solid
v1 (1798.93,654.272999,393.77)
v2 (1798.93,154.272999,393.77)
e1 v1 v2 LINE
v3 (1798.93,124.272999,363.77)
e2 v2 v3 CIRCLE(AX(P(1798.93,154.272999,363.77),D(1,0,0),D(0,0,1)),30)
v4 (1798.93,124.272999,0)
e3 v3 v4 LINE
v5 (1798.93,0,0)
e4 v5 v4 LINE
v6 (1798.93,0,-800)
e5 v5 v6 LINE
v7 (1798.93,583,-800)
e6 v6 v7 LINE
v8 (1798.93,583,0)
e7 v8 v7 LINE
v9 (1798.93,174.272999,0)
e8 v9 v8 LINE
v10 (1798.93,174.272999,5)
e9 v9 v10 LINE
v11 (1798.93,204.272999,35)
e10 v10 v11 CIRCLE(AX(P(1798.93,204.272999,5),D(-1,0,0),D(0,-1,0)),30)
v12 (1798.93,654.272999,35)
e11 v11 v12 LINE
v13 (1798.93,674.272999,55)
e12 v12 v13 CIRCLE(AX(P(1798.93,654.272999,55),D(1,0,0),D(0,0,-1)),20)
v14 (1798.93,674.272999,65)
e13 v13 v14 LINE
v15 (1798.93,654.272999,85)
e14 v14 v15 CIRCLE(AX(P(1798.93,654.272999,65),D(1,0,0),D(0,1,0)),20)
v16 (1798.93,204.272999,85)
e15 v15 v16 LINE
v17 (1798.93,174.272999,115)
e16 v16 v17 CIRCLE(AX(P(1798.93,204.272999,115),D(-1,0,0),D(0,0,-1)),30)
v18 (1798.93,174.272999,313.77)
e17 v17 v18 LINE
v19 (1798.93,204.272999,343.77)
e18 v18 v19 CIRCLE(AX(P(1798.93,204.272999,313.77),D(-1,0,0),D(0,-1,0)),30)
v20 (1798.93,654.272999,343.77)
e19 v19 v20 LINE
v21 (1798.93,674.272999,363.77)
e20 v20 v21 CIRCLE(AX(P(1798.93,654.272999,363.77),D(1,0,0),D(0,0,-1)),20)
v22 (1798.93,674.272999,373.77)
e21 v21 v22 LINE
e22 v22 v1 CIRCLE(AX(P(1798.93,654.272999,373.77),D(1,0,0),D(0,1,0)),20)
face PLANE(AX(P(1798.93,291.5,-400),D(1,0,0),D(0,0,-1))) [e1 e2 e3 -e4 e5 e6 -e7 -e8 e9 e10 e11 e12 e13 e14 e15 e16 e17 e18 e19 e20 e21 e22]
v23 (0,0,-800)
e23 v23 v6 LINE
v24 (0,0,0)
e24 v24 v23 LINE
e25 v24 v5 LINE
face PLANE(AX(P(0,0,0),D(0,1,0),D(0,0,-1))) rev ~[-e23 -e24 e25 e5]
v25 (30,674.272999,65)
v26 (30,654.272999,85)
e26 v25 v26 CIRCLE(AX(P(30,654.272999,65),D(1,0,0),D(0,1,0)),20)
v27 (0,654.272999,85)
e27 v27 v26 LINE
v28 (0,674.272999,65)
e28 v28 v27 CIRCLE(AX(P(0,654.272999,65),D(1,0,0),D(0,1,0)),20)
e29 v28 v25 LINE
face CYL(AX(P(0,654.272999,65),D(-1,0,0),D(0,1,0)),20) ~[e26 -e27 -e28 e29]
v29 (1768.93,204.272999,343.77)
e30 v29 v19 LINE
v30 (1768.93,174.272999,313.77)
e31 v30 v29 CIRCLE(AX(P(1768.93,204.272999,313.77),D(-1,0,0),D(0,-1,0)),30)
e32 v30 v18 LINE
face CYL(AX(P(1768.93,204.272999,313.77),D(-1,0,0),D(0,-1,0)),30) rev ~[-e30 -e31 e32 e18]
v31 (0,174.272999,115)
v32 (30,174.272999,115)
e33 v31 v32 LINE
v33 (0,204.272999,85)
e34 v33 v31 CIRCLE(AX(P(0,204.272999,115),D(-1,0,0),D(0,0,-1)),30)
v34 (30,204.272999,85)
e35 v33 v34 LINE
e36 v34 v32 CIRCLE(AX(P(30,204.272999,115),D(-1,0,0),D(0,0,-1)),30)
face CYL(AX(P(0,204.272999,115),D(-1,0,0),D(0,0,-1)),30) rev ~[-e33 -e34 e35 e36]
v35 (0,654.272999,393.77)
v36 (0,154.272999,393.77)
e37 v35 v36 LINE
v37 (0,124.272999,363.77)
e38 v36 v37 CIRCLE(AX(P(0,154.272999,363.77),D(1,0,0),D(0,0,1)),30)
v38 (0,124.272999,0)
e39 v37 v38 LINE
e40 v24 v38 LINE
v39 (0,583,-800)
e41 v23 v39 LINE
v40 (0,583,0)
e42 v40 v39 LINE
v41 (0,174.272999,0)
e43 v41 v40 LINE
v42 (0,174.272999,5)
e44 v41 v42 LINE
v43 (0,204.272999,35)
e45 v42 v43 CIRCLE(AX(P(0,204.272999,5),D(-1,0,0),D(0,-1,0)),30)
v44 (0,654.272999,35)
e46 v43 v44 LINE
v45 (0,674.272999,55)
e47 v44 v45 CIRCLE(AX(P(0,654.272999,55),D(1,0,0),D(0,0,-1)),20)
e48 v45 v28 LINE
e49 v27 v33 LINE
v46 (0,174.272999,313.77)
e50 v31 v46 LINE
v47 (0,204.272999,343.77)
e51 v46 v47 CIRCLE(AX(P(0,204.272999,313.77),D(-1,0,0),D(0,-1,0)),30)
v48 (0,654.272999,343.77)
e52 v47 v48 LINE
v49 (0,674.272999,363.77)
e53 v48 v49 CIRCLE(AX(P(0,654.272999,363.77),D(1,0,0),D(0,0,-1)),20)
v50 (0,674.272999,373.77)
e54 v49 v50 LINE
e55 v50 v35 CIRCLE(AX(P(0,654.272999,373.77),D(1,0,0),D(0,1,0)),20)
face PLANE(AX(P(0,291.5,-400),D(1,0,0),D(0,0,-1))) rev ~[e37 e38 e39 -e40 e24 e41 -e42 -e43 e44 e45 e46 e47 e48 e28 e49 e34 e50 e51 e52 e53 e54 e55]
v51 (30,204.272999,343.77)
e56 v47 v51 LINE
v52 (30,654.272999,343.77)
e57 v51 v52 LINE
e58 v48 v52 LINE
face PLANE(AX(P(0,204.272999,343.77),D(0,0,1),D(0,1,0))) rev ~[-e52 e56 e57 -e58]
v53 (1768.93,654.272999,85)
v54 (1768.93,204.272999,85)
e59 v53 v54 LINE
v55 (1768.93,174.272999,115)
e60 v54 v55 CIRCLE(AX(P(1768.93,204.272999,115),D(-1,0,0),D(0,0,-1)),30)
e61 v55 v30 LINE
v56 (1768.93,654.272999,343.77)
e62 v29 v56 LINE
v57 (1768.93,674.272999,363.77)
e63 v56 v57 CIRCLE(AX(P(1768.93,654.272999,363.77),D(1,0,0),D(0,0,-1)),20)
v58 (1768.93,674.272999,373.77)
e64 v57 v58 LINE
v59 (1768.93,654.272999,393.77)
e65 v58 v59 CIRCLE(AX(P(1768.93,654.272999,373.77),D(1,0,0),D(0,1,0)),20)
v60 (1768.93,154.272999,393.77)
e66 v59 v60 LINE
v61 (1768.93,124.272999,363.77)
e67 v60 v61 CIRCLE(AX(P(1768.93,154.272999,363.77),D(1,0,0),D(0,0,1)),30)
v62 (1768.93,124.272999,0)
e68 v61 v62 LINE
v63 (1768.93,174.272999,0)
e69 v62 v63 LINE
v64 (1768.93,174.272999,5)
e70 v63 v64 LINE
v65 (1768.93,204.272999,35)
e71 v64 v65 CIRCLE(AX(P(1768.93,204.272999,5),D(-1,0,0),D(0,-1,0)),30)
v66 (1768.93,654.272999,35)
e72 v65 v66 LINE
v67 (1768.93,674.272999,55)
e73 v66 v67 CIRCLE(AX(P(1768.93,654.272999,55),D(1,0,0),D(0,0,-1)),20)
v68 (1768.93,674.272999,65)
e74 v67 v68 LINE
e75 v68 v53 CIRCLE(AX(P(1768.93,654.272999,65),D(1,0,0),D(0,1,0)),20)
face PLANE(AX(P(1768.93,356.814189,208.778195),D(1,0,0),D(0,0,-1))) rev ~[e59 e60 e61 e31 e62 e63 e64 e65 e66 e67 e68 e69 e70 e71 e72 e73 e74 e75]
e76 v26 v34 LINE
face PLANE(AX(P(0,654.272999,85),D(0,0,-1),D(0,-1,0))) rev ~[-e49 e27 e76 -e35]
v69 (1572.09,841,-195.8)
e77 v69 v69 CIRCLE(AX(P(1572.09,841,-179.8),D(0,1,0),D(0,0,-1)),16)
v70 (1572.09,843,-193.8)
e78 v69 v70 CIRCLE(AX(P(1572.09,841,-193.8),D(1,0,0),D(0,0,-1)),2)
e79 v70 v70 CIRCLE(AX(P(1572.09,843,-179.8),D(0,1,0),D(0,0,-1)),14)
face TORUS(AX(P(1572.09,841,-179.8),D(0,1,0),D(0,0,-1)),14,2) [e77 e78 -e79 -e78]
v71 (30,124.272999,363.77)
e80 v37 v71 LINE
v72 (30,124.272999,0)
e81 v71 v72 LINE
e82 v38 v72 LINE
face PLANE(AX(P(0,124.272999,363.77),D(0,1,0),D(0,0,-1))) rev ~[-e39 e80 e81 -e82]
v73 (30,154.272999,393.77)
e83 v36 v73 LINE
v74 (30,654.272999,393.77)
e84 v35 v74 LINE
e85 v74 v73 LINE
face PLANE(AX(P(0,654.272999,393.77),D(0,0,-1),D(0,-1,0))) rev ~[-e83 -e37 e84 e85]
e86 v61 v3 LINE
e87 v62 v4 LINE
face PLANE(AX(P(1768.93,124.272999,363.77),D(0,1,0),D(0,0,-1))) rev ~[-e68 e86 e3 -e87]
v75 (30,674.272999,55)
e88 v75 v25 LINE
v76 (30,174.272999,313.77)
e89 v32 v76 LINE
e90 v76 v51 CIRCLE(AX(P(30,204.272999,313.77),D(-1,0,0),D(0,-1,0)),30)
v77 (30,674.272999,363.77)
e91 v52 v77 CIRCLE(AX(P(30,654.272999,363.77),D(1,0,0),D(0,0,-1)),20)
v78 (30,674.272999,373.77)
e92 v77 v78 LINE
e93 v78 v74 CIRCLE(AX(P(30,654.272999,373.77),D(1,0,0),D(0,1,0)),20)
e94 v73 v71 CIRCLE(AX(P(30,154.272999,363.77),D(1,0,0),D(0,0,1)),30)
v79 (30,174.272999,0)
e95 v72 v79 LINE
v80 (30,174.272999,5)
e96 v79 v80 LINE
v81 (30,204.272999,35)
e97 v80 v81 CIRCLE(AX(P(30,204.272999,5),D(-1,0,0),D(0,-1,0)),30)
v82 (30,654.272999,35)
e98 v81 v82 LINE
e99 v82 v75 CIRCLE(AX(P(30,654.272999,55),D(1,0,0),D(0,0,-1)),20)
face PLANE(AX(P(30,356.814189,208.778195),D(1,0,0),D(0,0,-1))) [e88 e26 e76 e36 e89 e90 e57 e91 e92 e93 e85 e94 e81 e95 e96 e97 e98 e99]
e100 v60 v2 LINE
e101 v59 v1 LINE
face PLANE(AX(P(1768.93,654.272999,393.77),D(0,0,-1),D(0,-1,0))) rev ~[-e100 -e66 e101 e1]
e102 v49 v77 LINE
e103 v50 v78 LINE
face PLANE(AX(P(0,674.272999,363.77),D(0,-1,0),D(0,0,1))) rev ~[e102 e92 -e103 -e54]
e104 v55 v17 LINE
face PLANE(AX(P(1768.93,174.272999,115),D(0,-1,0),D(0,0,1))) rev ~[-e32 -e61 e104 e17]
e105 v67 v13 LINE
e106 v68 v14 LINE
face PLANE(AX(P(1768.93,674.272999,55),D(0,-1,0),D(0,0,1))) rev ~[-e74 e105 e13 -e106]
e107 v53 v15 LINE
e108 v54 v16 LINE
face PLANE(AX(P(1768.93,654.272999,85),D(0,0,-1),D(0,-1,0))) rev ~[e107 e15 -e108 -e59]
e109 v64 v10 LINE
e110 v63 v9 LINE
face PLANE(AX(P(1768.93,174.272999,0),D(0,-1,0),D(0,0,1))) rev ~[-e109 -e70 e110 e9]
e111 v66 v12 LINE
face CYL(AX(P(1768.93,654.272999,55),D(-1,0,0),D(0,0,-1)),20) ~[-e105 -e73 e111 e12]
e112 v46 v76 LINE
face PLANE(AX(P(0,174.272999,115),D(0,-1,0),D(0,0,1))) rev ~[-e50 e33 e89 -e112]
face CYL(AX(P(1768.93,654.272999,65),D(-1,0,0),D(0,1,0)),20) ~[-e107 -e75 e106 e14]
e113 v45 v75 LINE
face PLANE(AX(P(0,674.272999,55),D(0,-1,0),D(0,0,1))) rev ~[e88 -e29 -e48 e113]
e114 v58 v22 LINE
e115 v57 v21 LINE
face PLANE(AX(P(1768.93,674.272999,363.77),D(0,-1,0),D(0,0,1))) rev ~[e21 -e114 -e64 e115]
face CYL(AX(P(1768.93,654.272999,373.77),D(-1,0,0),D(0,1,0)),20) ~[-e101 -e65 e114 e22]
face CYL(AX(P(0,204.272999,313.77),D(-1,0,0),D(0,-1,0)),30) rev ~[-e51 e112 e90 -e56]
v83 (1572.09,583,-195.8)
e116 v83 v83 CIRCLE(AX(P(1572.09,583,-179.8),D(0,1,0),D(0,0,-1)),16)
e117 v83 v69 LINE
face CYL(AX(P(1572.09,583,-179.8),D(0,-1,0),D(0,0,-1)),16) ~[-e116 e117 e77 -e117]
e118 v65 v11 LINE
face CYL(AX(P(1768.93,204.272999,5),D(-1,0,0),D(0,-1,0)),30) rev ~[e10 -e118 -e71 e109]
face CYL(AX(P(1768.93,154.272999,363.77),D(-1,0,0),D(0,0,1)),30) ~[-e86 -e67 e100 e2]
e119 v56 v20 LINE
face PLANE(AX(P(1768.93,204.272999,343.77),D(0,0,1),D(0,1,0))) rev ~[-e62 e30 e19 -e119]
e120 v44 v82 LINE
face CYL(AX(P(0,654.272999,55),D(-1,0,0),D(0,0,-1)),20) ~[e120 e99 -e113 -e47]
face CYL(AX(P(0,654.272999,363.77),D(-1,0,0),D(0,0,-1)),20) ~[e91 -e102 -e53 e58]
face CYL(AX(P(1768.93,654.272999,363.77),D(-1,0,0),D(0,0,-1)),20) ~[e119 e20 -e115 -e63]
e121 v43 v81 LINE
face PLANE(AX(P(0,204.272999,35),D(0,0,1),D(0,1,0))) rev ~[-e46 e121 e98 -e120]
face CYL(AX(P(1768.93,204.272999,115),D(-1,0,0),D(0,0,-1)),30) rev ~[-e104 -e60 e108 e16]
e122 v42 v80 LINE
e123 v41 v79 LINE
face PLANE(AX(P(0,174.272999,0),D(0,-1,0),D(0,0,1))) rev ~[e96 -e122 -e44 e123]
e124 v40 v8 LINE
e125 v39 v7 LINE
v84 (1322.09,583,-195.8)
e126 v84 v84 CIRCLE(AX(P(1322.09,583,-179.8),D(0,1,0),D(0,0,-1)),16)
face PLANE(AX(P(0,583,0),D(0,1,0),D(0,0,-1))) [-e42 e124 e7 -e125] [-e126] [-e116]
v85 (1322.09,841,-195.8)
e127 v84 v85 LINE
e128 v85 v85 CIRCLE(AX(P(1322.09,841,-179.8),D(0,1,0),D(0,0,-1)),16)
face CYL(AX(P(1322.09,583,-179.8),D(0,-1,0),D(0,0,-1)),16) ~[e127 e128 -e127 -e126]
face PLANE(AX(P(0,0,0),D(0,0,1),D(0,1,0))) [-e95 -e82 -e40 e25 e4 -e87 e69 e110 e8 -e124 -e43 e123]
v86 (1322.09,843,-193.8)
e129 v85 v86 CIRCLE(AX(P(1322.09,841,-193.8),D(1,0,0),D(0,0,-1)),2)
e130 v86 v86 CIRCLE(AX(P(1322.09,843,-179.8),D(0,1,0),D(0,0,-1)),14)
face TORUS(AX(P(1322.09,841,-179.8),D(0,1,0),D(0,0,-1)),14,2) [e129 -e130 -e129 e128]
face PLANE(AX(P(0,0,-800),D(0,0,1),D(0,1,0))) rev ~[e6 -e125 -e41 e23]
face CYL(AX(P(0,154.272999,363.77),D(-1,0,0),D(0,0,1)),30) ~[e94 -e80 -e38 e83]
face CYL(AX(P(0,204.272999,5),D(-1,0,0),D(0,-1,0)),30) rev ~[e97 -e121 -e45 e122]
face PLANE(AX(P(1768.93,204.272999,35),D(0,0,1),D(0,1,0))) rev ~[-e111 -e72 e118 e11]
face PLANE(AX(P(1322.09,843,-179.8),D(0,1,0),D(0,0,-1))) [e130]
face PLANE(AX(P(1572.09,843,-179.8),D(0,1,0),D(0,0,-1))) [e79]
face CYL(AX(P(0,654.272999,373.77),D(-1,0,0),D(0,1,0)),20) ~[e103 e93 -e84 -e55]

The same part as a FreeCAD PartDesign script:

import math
import FreeCAD as App
import Part
import Sketcher


def edges_at(feature, points):
    """Names of the edges that pass closest to the given points."""
    edges = feature.Shape.Edges
    near = lambda p: min(range(len(edges)), key=lambda i: edges[i].distToShape(Part.Vertex(*p))[0])
    return sorted({f"Edge{near(p) + 1}" for p in points})


def add_polygon(sketch, points):
    """Adds a closed chain of lines whose ends are joined by coincident constraints."""
    first, n = sketch.GeometryCount, len(points)
    for a, b in zip(points, points[1:] + points[:1]):
        sketch.addGeometry(Part.LineSegment(App.Vector(*a, 0), App.Vector(*b, 0)), False)
    for i in range(n):
        sketch.addConstraint(Sketcher.Constraint("Coincident", first + i, 2, first + (i + 1) % n, 1))

doc = App.newDocument("Part")
body = doc.addObject("PartDesign::Body", "Body")

# Sketch on YZ plane
sketch1 = body.newObject("Sketcher::SketchObject", "Sketch")
sketch1.AttachmentSupport = (doc.getObject("YZ_Plane"), [""])
sketch1.MapMode = "FlatFace"
add_polygon(sketch1, [(583, 0), (0, 0), (0, -800), (583, -800)])  # lines 0-3
sketch1.addConstraint([
    Sketcher.Constraint("Horizontal", 0),
    Sketcher.Constraint("Vertical", 1),
    Sketcher.Constraint("Horizontal", 2),
    Sketcher.Constraint("Vertical", 3),
    Sketcher.Constraint("Coincident", 0, 2, -1, 1),
    Sketcher.Constraint("DistanceX", 0, 2, 0, 1, 583.0),
    Sketcher.Constraint("DistanceY", 1, 2, 1, 1, 800.0),
])
pad1 = body.newObject("PartDesign::Pad", "Pad")
pad1.Profile = sketch1
pad1.Length = 1798.93

# Sketch on XZ plane
sketch2 = body.newObject("Sketcher::SketchObject", "Sketch001")
sketch2.AttachmentSupport = (doc.getObject("XZ_Plane"), [""])
sketch2.MapMode = "FlatFace"
sketch2.AttachmentOffset = App.Placement(App.Vector(0, 0, -583), App.Rotation())
sketch2.addGeometry(Part.Circle(App.Vector(1572, -180, 0), App.Vector(0, 0, 1), 16), False)
sketch2.addConstraint([
    Sketcher.Constraint("Diameter", 0, 32.0),
    Sketcher.Constraint("DistanceY", 0, 3, -1, 1, 179.8),
    Sketcher.Constraint("DistanceX", -1, 1, 0, 3, 1572.09),
])
pad2 = body.newObject("PartDesign::Pad", "Pad001")
pad2.Profile = sketch2
pad2.Length = 260
pad2.Reversed = True
doc.recompute()

linearpattern = body.newObject("PartDesign::LinearPattern", "LinearPattern")
linearpattern.Originals = [pad2]
linearpattern.Direction = (doc.getObject("X_Axis"), [""])
linearpattern.Mode = "offset"
linearpattern.Offset = 250
linearpattern.Occurrences = 2
linearpattern.Reversed = True
body.Tip = linearpattern

# Sketch on YZ plane
sketch3 = body.newObject("Sketcher::SketchObject", "Sketch002")
sketch3.AttachmentSupport = (doc.getObject("YZ_Plane"), [""])
sketch3.MapMode = "FlatFace"
sketch3.addGeometry([
    Part.LineSegment(App.Vector(174, 5, 0), App.Vector(174, 0, 0)),  # 0
    Part.LineSegment(App.Vector(174, 0, 0), App.Vector(124, 0, 0)),  # 1
    Part.LineSegment(App.Vector(124, 0, 0), App.Vector(124, 364, 0)),  # 2
    Part.ArcOfCircle(Part.Circle(App.Vector(154, 364, 0), App.Vector(0, 0, 1), 30), math.radians(90), math.radians(180)),  # 3
    Part.LineSegment(App.Vector(154, 394, 0), App.Vector(654, 394, 0)),  # 4
    Part.ArcOfCircle(Part.Circle(App.Vector(654, 374, 0), App.Vector(0, 0, 1), 20), math.radians(0), math.radians(90)),  # 5
    Part.LineSegment(App.Vector(674, 374, 0), App.Vector(674, 364, 0)),  # 6
    Part.ArcOfCircle(Part.Circle(App.Vector(654, 364, 0), App.Vector(0, 0, 1), 20), math.radians(-90), math.radians(0)),  # 7
    Part.LineSegment(App.Vector(654, 344, 0), App.Vector(204, 344, 0)),  # 8
    Part.ArcOfCircle(Part.Circle(App.Vector(204, 314, 0), App.Vector(0, 0, 1), 30), math.radians(90), math.radians(180)),  # 9
    Part.LineSegment(App.Vector(174, 314, 0), App.Vector(174, 115, 0)),  # 10
    Part.ArcOfCircle(Part.Circle(App.Vector(204, 115, 0), App.Vector(0, 0, 1), 30), math.radians(180), math.radians(270)),  # 11
    Part.LineSegment(App.Vector(204, 85, 0), App.Vector(654, 85, 0)),  # 12
    Part.ArcOfCircle(Part.Circle(App.Vector(654, 65, 0), App.Vector(0, 0, 1), 20), math.radians(0), math.radians(90)),  # 13
    Part.LineSegment(App.Vector(674, 65, 0), App.Vector(674, 55, 0)),  # 14
    Part.ArcOfCircle(Part.Circle(App.Vector(654, 55, 0), App.Vector(0, 0, 1), 20), math.radians(-90), math.radians(0)),  # 15
    Part.LineSegment(App.Vector(654, 35, 0), App.Vector(204, 35, 0)),  # 16
    Part.ArcOfCircle(Part.Circle(App.Vector(204, 5, 0), App.Vector(0, 0, 1), 30), math.radians(90), math.radians(180)),  # 17
], False)
sketch3.addConstraint([
    Sketcher.Constraint("Coincident", 0, 2, 1, 1),
    Sketcher.Constraint("Coincident", 1, 2, 2, 1),
    Sketcher.Constraint("Tangent", 2, 2, 3, 2),
    Sketcher.Constraint("Tangent", 3, 1, 4, 1),
    Sketcher.Constraint("Tangent", 4, 2, 5, 2),
    Sketcher.Constraint("Tangent", 5, 1, 6, 1),
    Sketcher.Constraint("Tangent", 6, 2, 7, 2),
    Sketcher.Constraint("Tangent", 7, 1, 8, 1),
    Sketcher.Constraint("Tangent", 8, 2, 9, 1),
    Sketcher.Constraint("Tangent", 9, 2, 10, 1),
    Sketcher.Constraint("Tangent", 10, 2, 11, 1),
    Sketcher.Constraint("Tangent", 11, 2, 12, 1),
    Sketcher.Constraint("Tangent", 12, 2, 13, 2),
    Sketcher.Constraint("Tangent", 13, 1, 14, 1),
    Sketcher.Constraint("Tangent", 14, 2, 15, 2),
    Sketcher.Constraint("Tangent", 15, 1, 16, 1),
    Sketcher.Constraint("Tangent", 16, 2, 17, 1),
    Sketcher.Constraint("Tangent", 17, 2, 0, 1),
    Sketcher.Constraint("Vertical", 0),
    Sketcher.Constraint("Horizontal", 1),
    Sketcher.Constraint("Vertical", 2),
    Sketcher.Constraint("Horizontal", 4),
    Sketcher.Constraint("Vertical", 6),
    Sketcher.Constraint("Horizontal", 8),
    Sketcher.Constraint("Vertical", 10),
    Sketcher.Constraint("Horizontal", 12),
    Sketcher.Constraint("Vertical", 14),
    Sketcher.Constraint("Horizontal", 16),
    Sketcher.Constraint("Equal", 5, 7),
    Sketcher.Constraint("Equal", 3, 9),
    Sketcher.Constraint("Equal", 9, 11),
    Sketcher.Constraint("Equal", 7, 13),
    Sketcher.Constraint("Equal", 13, 15),
    Sketcher.Constraint("Equal", 11, 17),
    Sketcher.Constraint("PointOnObject", 0, 2, -1),
    Sketcher.Constraint("Horizontal", 3, 3, 7, 3),
    Sketcher.Constraint("Vertical", 7, 3, 13, 3),
    Sketcher.Constraint("Vertical", 11, 3, 17, 3),
    Sketcher.Constraint("Equal", 6, 14),
    Sketcher.Constraint("Radius", 3, 30.0),
    Sketcher.Constraint("Radius", 5, 20.0),
    Sketcher.Constraint("DistanceX", 1, 2, 1, 1, 50.0),
    Sketcher.Constraint("DistanceX", 4, 1, 4, 2, 500.0),
    Sketcher.Constraint("DistanceY", 0, 2, 0, 1, 5.0),
    Sketcher.Constraint("DistanceY", 2, 1, 2, 2, 363.77),
    Sketcher.Constraint("DistanceX", -1, 1, 3, 3, 154.272999),
])
pad3 = body.newObject("PartDesign::Pad", "Pad002")
pad3.Profile = sketch3
pad3.Length = 30
doc.recompute()

linearpattern2 = body.newObject("PartDesign::LinearPattern", "LinearPattern001")
linearpattern2.Originals = [pad3]
linearpattern2.Direction = (doc.getObject("X_Axis"), [""])
linearpattern2.Mode = "offset"
linearpattern2.Offset = 1768.93
linearpattern2.Occurrences = 2
body.Tip = linearpattern2
doc.recompute()

fillet = body.newObject("PartDesign::Fillet", "Fillet")
fillet.Base = (linearpattern2, edges_at(linearpattern2, [(1572.09, 843, -163.8), (1322.09, 843, -163.8)]))
fillet.Radius = 2

doc.recompute()
